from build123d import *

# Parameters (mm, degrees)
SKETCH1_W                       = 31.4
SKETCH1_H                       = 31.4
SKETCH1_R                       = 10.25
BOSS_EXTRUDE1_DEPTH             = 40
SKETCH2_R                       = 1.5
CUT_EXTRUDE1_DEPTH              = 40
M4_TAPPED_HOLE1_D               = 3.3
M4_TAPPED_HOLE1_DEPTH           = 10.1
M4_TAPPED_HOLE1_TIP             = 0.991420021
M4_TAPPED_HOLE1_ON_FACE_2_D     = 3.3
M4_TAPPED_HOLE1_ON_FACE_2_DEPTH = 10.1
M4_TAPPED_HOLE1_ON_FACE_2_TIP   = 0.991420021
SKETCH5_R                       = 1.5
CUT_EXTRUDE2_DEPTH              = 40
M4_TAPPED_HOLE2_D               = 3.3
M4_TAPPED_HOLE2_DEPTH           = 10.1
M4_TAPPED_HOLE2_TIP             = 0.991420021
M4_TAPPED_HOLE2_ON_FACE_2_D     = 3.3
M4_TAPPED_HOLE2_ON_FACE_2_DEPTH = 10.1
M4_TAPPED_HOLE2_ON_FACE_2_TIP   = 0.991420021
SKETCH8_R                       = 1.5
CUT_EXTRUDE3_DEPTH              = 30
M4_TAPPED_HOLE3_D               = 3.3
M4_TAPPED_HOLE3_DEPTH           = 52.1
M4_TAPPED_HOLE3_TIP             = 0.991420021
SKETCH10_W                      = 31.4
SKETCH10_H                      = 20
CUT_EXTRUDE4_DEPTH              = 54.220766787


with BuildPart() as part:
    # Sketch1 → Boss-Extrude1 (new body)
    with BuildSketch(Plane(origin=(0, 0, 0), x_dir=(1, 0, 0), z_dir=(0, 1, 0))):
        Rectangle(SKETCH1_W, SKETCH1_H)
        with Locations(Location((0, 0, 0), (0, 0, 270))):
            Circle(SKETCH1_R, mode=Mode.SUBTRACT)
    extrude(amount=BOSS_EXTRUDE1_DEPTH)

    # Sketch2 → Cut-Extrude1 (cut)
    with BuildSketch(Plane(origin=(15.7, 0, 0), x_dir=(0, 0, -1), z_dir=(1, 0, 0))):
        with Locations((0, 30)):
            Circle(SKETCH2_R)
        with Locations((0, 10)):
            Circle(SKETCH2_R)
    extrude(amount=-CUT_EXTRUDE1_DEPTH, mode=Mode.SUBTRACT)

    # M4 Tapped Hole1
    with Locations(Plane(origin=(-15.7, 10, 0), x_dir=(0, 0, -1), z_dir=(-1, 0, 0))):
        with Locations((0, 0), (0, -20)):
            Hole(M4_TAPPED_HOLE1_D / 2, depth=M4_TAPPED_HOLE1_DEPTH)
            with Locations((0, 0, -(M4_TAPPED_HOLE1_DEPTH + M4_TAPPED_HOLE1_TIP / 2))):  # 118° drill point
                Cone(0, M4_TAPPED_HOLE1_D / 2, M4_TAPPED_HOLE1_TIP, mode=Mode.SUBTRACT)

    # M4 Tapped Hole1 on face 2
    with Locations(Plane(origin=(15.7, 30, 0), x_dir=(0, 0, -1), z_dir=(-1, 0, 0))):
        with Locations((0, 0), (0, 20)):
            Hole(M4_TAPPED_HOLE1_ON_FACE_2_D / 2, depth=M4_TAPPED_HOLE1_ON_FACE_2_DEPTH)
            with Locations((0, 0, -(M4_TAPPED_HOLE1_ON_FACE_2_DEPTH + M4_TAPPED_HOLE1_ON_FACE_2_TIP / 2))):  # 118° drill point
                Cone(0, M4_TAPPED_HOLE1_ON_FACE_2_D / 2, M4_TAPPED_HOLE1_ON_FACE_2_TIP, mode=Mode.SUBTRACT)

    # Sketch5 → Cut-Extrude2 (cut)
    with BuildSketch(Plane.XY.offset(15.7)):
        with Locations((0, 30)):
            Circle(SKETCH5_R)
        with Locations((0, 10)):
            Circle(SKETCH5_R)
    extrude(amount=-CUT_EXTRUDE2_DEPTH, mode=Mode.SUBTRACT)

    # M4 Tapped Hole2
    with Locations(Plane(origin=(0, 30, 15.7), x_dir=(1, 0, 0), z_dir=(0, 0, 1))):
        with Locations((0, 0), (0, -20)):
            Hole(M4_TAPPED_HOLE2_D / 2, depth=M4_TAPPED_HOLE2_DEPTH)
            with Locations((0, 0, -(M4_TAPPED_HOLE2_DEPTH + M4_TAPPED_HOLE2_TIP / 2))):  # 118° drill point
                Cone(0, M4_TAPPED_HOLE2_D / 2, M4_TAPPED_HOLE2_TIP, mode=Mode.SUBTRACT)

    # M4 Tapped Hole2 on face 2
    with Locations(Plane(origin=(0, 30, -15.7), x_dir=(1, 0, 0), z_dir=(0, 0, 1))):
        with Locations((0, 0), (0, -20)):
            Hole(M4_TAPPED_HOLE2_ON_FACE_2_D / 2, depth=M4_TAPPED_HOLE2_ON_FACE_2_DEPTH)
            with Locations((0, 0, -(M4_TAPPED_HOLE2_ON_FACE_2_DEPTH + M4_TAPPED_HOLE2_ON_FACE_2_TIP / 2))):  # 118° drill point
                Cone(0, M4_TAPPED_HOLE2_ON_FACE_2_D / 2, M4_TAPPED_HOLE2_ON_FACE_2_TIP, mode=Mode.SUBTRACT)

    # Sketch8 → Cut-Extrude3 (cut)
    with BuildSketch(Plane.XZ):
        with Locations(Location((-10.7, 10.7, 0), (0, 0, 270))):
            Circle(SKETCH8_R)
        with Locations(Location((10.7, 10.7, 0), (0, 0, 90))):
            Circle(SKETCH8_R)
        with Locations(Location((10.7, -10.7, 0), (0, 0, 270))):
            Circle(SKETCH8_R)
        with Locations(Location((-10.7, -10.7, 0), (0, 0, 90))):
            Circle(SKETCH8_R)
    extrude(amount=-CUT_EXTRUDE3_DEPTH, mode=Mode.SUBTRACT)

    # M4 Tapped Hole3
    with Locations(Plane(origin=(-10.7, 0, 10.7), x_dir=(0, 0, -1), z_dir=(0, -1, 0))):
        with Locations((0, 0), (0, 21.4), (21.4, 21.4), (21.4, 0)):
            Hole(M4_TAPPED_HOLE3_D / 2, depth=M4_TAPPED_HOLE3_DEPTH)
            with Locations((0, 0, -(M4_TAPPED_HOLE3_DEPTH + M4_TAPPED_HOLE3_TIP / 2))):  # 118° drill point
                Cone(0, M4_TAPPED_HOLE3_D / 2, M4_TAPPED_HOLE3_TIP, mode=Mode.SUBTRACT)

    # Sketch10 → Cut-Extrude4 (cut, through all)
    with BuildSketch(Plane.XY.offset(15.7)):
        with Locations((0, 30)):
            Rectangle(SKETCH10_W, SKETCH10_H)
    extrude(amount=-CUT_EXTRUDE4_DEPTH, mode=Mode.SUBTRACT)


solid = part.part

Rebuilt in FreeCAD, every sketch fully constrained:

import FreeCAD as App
import Part
import Sketcher
from FreeCAD import Vector


def add_polygon(sketch, points):
    """Adds a closed chain of lines whose ends are joined by coincident constraints."""
    first, n = sketch.GeometryCount, len(points)
    for a, b in zip(points, points[1:] + points[:1]):
        sketch.addGeometry(Part.LineSegment(App.Vector(*a, 0), App.Vector(*b, 0)), False)
    for i in range(n):
        sketch.addConstraint(Sketcher.Constraint("Coincident", first + i, 2, first + (i + 1) % n, 1))

doc = App.newDocument("Part")
body = doc.addObject("PartDesign::Body", "Body")

# Sketch on XZ plane
sketch1 = body.newObject("Sketcher::SketchObject", "Sketch")
sketch1.AttachmentSupport = (doc.getObject("XZ_Plane"), [""])
sketch1.MapMode = "FlatFace"
add_polygon(sketch1, [(-16, -16), (-16, 16), (16, 16), (16, -16)])  # lines 0-3
sketch1.addGeometry(Part.Circle(Vector(0, 0, 0), Vector(0, 0, 1), 10), False)  # 4
sketch1.addConstraint(Sketcher.Constraint("Vertical", 0))
sketch1.addConstraint(Sketcher.Constraint("Horizontal", 1))
sketch1.addConstraint(Sketcher.Constraint("Vertical", 2))
sketch1.addConstraint(Sketcher.Constraint("Horizontal", 3))
sketch1.addConstraint(Sketcher.Constraint("Coincident", 4, 3, -1, 1))
sketch1.addConstraint(Sketcher.Constraint("Symmetric", 0, 2, 2, 2, -1, 1))
sketch1.addConstraint(Sketcher.Constraint("Equal", 3, 0))
sketch1.addConstraint(Sketcher.Constraint("Diameter", 4, 20.5))
sketch1.addConstraint(Sketcher.Constraint("DistanceX", 1, 1, 1, 2, 31.4))
pad1 = body.newObject("PartDesign::Pad", "Pad")
pad1.Profile = sketch1
pad1.Length = 40
pad1.Reversed = True

# Sketch on YZ plane
sketch2 = body.newObject("Sketcher::SketchObject", "Sketch001")
sketch2.AttachmentSupport = (doc.getObject("YZ_Plane"), [""])
sketch2.MapMode = "FlatFace"
sketch2.AttachmentOffset = App.Placement(Vector(0, 0, 15.7), App.Rotation())
sketch2.addGeometry(Part.Circle(Vector(30, 0, 0), Vector(0, 0, 1), 1.5), False)
sketch2.addGeometry(Part.Circle(Vector(10, 0, 0), Vector(0, 0, 1), 1.5), False)
sketch2.addConstraint(Sketcher.Constraint("Equal", 0, 1))
sketch2.addConstraint(Sketcher.Constraint("PointOnObject", 0, 3, -1))
sketch2.addConstraint(Sketcher.Constraint("PointOnObject", 1, 3, -1))
sketch2.addConstraint(Sketcher.Constraint("Diameter", 0, 3.0))
sketch2.addConstraint(Sketcher.Constraint("DistanceX", -1, 1, 0, 3, 30.0))
sketch2.addConstraint(Sketcher.Constraint("DistanceX", -1, 1, 1, 3, 10.0))
pocket1 = body.newObject("PartDesign::Pocket", "Pocket")
pocket1.Profile = sketch2
pocket1.Length = 40

# Sketch on YZ plane
sketch3 = body.newObject("Sketcher::SketchObject", "Sketch002")
sketch3.AttachmentSupport = (doc.getObject("YZ_Plane"), [""])
sketch3.MapMode = "FlatFace"
sketch3.AttachmentOffset = App.Placement(Vector(0, 0, -15.7), App.Rotation())
sketch3.addGeometry(Part.Circle(Vector(10, 0, 0), Vector(0, 0, 1), 1.6), False)
sketch3.addGeometry(Part.Circle(Vector(30, 0, 0), Vector(0, 0, 1), 1.6), False)
sketch3.addConstraint(Sketcher.Constraint("Equal", 0, 1))
sketch3.addConstraint(Sketcher.Constraint("PointOnObject", 0, 3, -1))
sketch3.addConstraint(Sketcher.Constraint("PointOnObject", 1, 3, -1))
sketch3.addConstraint(Sketcher.Constraint("Diameter", 0, 3.3))
sketch3.addConstraint(Sketcher.Constraint("DistanceX", -1, 1, 0, 3, 10.0))
sketch3.addConstraint(Sketcher.Constraint("DistanceX", -1, 1, 1, 3, 30.0))
doc.recompute()
hole = body.newObject("PartDesign::Hole", "Hole")
hole.Profile = sketch3
hole.ThreadType = "None"
hole.Diameter = 3.3
hole.DepthType = "Dimension"
hole.Depth = 10.1
hole.DrillPoint = "Angled"
hole.DrillPointAngle = 118
hole.Reversed = True

# Sketch on YZ plane
sketch4 = body.newObject("Sketcher::SketchObject", "Sketch003")
sketch4.AttachmentSupport = (doc.getObject("YZ_Plane"), [""])
sketch4.MapMode = "FlatFace"
sketch4.AttachmentOffset = App.Placement(Vector(0, 0, 15.7), App.Rotation())
sketch4.addGeometry(Part.Circle(Vector(30, 0, 0), Vector(0, 0, 1), 1.6), False)
sketch4.addGeometry(Part.Circle(Vector(10, 0, 0), Vector(0, 0, 1), 1.6), False)
sketch4.addConstraint(Sketcher.Constraint("Equal", 0, 1))
sketch4.addConstraint(Sketcher.Constraint("PointOnObject", 0, 3, -1))
sketch4.addConstraint(Sketcher.Constraint("PointOnObject", 1, 3, -1))
sketch4.addConstraint(Sketcher.Constraint("Diameter", 0, 3.3))
sketch4.addConstraint(Sketcher.Constraint("DistanceX", -1, 1, 0, 3, 30.0))
sketch4.addConstraint(Sketcher.Constraint("DistanceX", -1, 1, 1, 3, 10.0))
doc.recompute()
hole2 = body.newObject("PartDesign::Hole", "Hole001")
hole2.Profile = sketch4
hole2.ThreadType = "None"
hole2.Diameter = 3.3
hole2.DepthType = "Dimension"
hole2.Depth = 10.1
hole2.DrillPoint = "Angled"
hole2.DrillPointAngle = 118

# Sketch on XY plane
sketch5 = body.newObject("Sketcher::SketchObject", "Sketch004")
sketch5.AttachmentSupport = (doc.getObject("XY_Plane"), [""])
sketch5.MapMode = "FlatFace"
sketch5.AttachmentOffset = App.Placement(Vector(0, 0, 15.7), App.Rotation())
sketch5.addGeometry(Part.Circle(Vector(0, 30, 0), Vector(0, 0, 1), 1.5), False)
sketch5.addGeometry(Part.Circle(Vector(0, 10, 0), Vector(0, 0, 1), 1.5), False)
sketch5.addConstraint(Sketcher.Constraint("Equal", 0, 1))
sketch5.addConstraint(Sketcher.Constraint("PointOnObject", 0, 3, -2))
sketch5.addConstraint(Sketcher.Constraint("PointOnObject", 1, 3, -2))
sketch5.addConstraint(Sketcher.Constraint("Diameter", 0, 3.0))
sketch5.addConstraint(Sketcher.Constraint("DistanceY", -1, 1, 0, 3, 30.0))
sketch5.addConstraint(Sketcher.Constraint("DistanceY", -1, 1, 1, 3, 10.0))
pocket2 = body.newObject("PartDesign::Pocket", "Pocket001")
pocket2.Profile = sketch5
pocket2.Length = 40

# Sketch on XY plane
sketch6 = body.newObject("Sketcher::SketchObject", "Sketch005")
sketch6.AttachmentSupport = (doc.getObject("XY_Plane"), [""])
sketch6.MapMode = "FlatFace"
sketch6.AttachmentOffset = App.Placement(Vector(0, 0, 15.7), App.Rotation())
sketch6.addGeometry(Part.Circle(Vector(0, 30, 0), Vector(0, 0, 1), 1.6), False)
sketch6.addGeometry(Part.Circle(Vector(0, 10, 0), Vector(0, 0, 1), 1.6), False)
sketch6.addConstraint(Sketcher.Constraint("Equal", 0, 1))
sketch6.addConstraint(Sketcher.Constraint("PointOnObject", 0, 3, -2))
sketch6.addConstraint(Sketcher.Constraint("PointOnObject", 1, 3, -2))
sketch6.addConstraint(Sketcher.Constraint("Diameter", 0, 3.3))
sketch6.addConstraint(Sketcher.Constraint("DistanceY", -1, 1, 0, 3, 30.0))
sketch6.addConstraint(Sketcher.Constraint("DistanceY", -1, 1, 1, 3, 10.0))
doc.recompute()
hole3 = body.newObject("PartDesign::Hole", "Hole002")
hole3.Profile = sketch6
hole3.ThreadType = "None"
hole3.Diameter = 3.3
hole3.DepthType = "Dimension"
hole3.Depth = 10.1
hole3.DrillPoint = "Angled"
hole3.DrillPointAngle = 118

# Sketch on XY plane
sketch7 = body.newObject("Sketcher::SketchObject", "Sketch006")
sketch7.AttachmentSupport = (doc.getObject("XY_Plane"), [""])
sketch7.MapMode = "FlatFace"
sketch7.AttachmentOffset = App.Placement(Vector(0, 0, -15.7), App.Rotation())
sketch7.addGeometry(Part.Circle(Vector(0, 30, 0), Vector(0, 0, 1), 1.6), False)
sketch7.addGeometry(Part.Circle(Vector(0, 10, 0), Vector(0, 0, 1), 1.6), False)
sketch7.addConstraint(Sketcher.Constraint("Equal", 0, 1))
sketch7.addConstraint(Sketcher.Constraint("PointOnObject", 0, 3, -2))
sketch7.addConstraint(Sketcher.Constraint("PointOnObject", 1, 3, -2))
sketch7.addConstraint(Sketcher.Constraint("Diameter", 0, 3.3))
sketch7.addConstraint(Sketcher.Constraint("DistanceY", -1, 1, 0, 3, 30.0))
sketch7.addConstraint(Sketcher.Constraint("DistanceY", -1, 1, 1, 3, 10.0))
doc.recompute()
hole4 = body.newObject("PartDesign::Hole", "Hole003")
hole4.Profile = sketch7
hole4.ThreadType = "None"
hole4.Diameter = 3.3
hole4.DepthType = "Dimension"
hole4.Depth = 10.1
hole4.DrillPoint = "Angled"
hole4.DrillPointAngle = 118
hole4.Reversed = True

# Sketch on XZ plane
sketch8 = body.newObject("Sketcher::SketchObject", "Sketch007")
sketch8.AttachmentSupport = (doc.getObject("XZ_Plane"), [""])
sketch8.MapMode = "FlatFace"
sketch8.addGeometry(Part.Circle(Vector(-10.7, 10.7, 0), Vector(0, 0, 1), 1.5), False)
sketch8.addGeometry(Part.Circle(Vector(10.7, 10.7, 0), Vector(0, 0, 1), 1.5), False)
sketch8.addGeometry(Part.Circle(Vector(10.7, -10.7, 0), Vector(0, 0, 1), 1.5), False)
sketch8.addGeometry(Part.Circle(Vector(-10.7, -10.7, 0), Vector(0, 0, 1), 1.5), False)
sketch8.addConstraint(Sketcher.Constraint("Equal", 0, 1))
sketch8.addConstraint(Sketcher.Constraint("Equal", 1, 2))
sketch8.addConstraint(Sketcher.Constraint("Equal", 2, 3))
sketch8.addConstraint(Sketcher.Constraint("Symmetric", 0, 3, 2, 3, -1, 1))
sketch8.addConstraint(Sketcher.Constraint("Symmetric", 1, 3, 3, 3, -1, 1))
sketch8.addConstraint(Sketcher.Constraint("Symmetric", 0, 3, 1, 3, -2))
sketch8.addConstraint(Sketcher.Constraint("Diameter", 0, 3.0))
sketch8.addConstraint(Sketcher.Constraint("DistanceX", 0, 3, -1, 1, 10.7))
sketch8.addConstraint(Sketcher.Constraint("DistanceY", -1, 1, 0, 3, 10.7))
pocket3 = body.newObject("PartDesign::Pocket", "Pocket002")
pocket3.Profile = sketch8
pocket3.Length = 30

# Sketch on XZ plane
sketch9 = body.newObject("Sketcher::SketchObject", "Sketch008")
sketch9.AttachmentSupport = (doc.getObject("XZ_Plane"), [""])
sketch9.MapMode = "FlatFace"
sketch9.addGeometry(Part.Circle(Vector(-10.7, 10.7, 0), Vector(0, 0, 1), 1.6), False)
sketch9.addGeometry(Part.Circle(Vector(10.7, 10.7, 0), Vector(0, 0, 1), 1.6), False)
sketch9.addGeometry(Part.Circle(Vector(10.7, -10.7, 0), Vector(0, 0, 1), 1.6), False)
sketch9.addGeometry(Part.Circle(Vector(-10.7, -10.7, 0), Vector(0, 0, 1), 1.6), False)
sketch9.addConstraint(Sketcher.Constraint("Equal", 0, 1))
sketch9.addConstraint(Sketcher.Constraint("Equal", 1, 2))
sketch9.addConstraint(Sketcher.Constraint("Equal", 2, 3))
sketch9.addConstraint(Sketcher.Constraint("Symmetric", 0, 3, 2, 3, -1, 1))
sketch9.addConstraint(Sketcher.Constraint("Symmetric", 1, 3, 3, 3, -1, 1))
sketch9.addConstraint(Sketcher.Constraint("Symmetric", 0, 3, 1, 3, -2))
sketch9.addConstraint(Sketcher.Constraint("Diameter", 0, 3.3))
sketch9.addConstraint(Sketcher.Constraint("DistanceX", 0, 3, -1, 1, 10.7))
sketch9.addConstraint(Sketcher.Constraint("DistanceY", -1, 1, 0, 3, 10.7))
doc.recompute()
hole5 = body.newObject("PartDesign::Hole", "Hole004")
hole5.Profile = sketch9
hole5.ThreadType = "None"
hole5.Diameter = 3.3
hole5.DepthType = "Dimension"
hole5.Depth = 52.1
hole5.DrillPoint = "Angled"
hole5.DrillPointAngle = 118

# Sketch on XY plane
sketch10 = body.newObject("Sketcher::SketchObject", "Sketch009")
sketch10.AttachmentSupport = (doc.getObject("XY_Plane"), [""])
sketch10.MapMode = "FlatFace"
sketch10.AttachmentOffset = App.Placement(Vector(0, 0, 15.7), App.Rotation())
add_polygon(sketch10, [(-16, 40), (-16, 20), (16, 20), (16, 40)])  # lines 0-3
sketch10.addConstraint(Sketcher.Constraint("Vertical", 0))
sketch10.addConstraint(Sketcher.Constraint("Horizontal", 1))
sketch10.addConstraint(Sketcher.Constraint("Vertical", 2))
sketch10.addConstraint(Sketcher.Constraint("Horizontal", 3))
sketch10.addConstraint(Sketcher.Constraint("DistanceY", 0, 2, 0, 1, 20.0))
sketch10.addConstraint(Sketcher.Constraint("DistanceX", 1, 1, 1, 2, 31.4))
sketch10.addConstraint(Sketcher.Constraint("DistanceY", -1, 1, 0, 2, 20.0))
sketch10.addConstraint(Sketcher.Constraint("DistanceX", 0, 2, -1, 1, 15.7))
pocket4 = body.newObject("PartDesign::Pocket", "Pocket003")
pocket4.Profile = sketch10
pocket4.Type = "ThroughAll"

doc.recompute()
